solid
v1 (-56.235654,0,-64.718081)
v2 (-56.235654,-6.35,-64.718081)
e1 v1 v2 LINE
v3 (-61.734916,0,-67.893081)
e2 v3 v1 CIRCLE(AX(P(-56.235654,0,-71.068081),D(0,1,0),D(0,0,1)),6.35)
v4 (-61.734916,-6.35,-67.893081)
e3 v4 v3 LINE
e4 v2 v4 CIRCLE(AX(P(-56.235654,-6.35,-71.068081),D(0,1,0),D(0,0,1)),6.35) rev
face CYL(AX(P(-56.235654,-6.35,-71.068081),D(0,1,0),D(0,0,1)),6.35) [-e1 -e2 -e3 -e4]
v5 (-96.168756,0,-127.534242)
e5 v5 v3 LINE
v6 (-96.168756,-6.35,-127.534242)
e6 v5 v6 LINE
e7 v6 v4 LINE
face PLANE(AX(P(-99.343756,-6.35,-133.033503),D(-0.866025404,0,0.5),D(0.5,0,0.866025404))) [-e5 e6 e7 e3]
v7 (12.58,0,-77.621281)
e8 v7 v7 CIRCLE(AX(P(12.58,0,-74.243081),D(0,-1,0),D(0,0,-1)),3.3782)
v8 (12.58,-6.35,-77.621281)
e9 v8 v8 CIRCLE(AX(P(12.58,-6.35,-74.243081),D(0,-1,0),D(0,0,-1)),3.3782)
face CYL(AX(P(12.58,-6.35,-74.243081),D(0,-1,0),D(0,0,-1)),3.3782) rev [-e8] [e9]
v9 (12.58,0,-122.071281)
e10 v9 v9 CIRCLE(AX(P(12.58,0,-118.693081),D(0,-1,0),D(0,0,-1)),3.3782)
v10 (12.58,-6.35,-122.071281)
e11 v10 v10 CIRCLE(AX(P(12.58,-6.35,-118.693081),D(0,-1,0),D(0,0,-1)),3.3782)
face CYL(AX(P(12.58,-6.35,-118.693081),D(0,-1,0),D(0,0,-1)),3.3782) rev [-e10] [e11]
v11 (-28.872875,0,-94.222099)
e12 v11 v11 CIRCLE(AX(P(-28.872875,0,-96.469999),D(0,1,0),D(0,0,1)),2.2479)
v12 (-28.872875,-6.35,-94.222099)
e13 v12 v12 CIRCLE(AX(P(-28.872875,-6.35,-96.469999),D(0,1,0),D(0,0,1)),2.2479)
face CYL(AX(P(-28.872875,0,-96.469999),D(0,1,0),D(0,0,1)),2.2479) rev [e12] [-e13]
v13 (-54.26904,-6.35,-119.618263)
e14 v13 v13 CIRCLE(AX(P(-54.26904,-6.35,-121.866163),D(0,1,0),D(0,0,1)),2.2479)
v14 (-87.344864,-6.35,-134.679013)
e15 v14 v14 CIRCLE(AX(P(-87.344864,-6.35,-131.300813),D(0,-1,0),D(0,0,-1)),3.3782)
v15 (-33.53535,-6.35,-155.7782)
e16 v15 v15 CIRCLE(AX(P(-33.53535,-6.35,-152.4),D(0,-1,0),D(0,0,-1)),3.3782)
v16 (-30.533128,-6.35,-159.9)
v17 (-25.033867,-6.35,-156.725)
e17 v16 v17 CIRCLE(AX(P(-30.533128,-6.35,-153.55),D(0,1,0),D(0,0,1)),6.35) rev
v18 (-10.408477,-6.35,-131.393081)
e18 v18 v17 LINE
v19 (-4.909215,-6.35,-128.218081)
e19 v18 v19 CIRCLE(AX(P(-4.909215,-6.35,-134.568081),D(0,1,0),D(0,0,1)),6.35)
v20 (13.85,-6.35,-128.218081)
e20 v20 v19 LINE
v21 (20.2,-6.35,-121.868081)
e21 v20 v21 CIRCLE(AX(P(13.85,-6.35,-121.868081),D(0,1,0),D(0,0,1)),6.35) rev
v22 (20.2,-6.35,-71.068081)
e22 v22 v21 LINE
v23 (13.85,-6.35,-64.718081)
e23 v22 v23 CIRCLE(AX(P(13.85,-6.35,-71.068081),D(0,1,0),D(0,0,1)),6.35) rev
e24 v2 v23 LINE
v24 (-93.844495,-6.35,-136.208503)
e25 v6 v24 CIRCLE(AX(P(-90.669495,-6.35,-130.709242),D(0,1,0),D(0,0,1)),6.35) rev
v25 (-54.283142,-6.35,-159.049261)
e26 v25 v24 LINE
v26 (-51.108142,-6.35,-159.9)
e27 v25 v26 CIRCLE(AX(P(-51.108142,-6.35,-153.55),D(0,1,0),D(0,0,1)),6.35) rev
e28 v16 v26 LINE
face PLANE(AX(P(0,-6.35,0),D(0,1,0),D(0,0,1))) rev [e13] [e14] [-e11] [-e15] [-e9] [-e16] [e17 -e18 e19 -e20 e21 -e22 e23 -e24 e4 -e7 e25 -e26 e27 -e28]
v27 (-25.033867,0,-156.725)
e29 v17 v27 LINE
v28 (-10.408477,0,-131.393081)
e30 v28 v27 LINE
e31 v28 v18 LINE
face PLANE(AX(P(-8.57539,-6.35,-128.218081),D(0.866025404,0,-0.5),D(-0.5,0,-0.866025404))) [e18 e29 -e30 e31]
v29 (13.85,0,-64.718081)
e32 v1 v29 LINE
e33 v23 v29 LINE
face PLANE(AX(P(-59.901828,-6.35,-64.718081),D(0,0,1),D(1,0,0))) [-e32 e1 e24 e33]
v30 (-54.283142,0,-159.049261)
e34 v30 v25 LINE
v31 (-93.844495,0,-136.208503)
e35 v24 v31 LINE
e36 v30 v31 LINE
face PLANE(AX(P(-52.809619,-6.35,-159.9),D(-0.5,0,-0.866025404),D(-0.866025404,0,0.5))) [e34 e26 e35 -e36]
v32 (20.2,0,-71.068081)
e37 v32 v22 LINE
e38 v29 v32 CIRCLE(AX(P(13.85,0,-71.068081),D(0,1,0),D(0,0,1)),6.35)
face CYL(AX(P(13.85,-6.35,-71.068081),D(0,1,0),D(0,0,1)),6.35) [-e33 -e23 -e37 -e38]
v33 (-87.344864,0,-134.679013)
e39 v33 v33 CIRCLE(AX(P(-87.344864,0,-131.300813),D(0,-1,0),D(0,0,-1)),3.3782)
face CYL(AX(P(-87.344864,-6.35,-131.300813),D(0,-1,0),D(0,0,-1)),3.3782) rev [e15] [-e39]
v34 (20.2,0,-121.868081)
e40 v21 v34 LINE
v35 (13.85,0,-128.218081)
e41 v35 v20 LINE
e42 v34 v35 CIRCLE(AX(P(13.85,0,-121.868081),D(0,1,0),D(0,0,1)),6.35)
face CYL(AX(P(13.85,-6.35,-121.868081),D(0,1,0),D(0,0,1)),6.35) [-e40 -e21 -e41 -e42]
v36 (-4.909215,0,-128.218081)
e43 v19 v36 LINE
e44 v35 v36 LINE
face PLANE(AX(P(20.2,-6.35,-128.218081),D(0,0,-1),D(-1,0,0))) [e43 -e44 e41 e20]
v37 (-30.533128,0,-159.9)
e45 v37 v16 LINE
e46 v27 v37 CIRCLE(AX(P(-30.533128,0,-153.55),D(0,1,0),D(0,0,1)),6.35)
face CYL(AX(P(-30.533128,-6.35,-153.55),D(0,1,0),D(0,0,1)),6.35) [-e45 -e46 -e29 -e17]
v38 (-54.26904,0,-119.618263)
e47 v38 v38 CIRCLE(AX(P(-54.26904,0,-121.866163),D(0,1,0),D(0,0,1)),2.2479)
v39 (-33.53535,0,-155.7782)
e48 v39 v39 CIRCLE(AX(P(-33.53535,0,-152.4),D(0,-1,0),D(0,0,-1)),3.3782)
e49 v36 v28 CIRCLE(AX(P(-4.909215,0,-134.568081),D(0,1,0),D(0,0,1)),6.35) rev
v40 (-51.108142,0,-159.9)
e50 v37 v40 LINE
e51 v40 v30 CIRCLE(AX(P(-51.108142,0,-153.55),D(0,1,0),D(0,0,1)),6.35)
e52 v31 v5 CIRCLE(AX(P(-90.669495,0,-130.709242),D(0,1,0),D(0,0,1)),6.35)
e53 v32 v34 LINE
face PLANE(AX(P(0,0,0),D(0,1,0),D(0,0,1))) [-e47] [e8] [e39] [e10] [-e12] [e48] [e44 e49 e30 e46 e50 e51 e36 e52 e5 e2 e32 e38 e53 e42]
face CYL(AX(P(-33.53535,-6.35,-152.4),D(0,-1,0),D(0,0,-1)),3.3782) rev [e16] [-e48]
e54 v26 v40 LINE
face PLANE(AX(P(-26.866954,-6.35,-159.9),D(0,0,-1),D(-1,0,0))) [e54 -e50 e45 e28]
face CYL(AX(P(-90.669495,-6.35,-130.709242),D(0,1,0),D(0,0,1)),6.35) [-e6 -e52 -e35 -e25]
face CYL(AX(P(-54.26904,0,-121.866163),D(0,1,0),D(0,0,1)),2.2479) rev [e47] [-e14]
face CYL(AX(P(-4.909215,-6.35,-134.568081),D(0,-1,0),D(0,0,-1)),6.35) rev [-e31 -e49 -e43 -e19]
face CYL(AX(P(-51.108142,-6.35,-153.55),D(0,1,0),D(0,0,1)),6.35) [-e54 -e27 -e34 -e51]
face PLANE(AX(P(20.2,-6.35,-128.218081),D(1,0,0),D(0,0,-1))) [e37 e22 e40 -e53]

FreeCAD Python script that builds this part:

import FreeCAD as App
import Part
import Sketcher
Q = App.Units.Quantity


def edges_at(feature, points):
    """Names of the edges that pass closest to the given points."""
    edges = feature.Shape.Edges
    near = lambda p: min(range(len(edges)), key=lambda i: edges[i].distToShape(Part.Vertex(*p))[0])
    return sorted({f"Edge{near(p) + 1}" for p in points})

doc = App.newDocument("Part")
params = doc.addObject("Spreadsheet::Sheet", "Params")
for row, (alias, value) in enumerate([
    ("sketch1_height", "2.5 in"),
    ("pad1_length", "0.25 in"),
    ("fillet_radius", "0.25 in"),
    ("sketch2_diameter", "0.266 in"),
    ("hole_diameter", "0.266 in"),
    ("sketch3_diameter", "0.177 in"),
    ("hole2_diameter", "0.177 in"),
], start=1):
    params.set(f"A{row}", alias)
    params.set(f"B{row}", "=" + value)
    params.setAlias(f"B{row}", alias)

body = doc.addObject("PartDesign::Body", "Body")

# Sketch on XZ plane
sketch1 = doc.addObject("Sketcher::SketchObject", "Sketch")
body.addObject(sketch1)
sketch1.AttachmentSupport = (doc.XZ_Plane, [""])
sketch1.MapMode = "FlatFace"
sketch1.addGeometry(Part.LineSegment(App.Vector(-27, -160, 0), App.Vector(-53, -160, 0)), False)
sketch1.addGeometry(Part.LineSegment(App.Vector(-53, -160, 0), App.Vector(-99, -133, 0)), False)
sketch1.addGeometry(Part.LineSegment(App.Vector(-99, -133, 0), App.Vector(-60, -65, 0)), False)
sketch1.addGeometry(Part.LineSegment(App.Vector(-60, -65, 0), App.Vector(20, -65, 0)), False)
sketch1.addGeometry(Part.LineSegment(App.Vector(20, -65, 0), App.Vector(20, -128, 0)), False)
sketch1.addGeometry(Part.LineSegment(App.Vector(20, -128, 0), App.Vector(-9, -128, 0)), False)
sketch1.addGeometry(Part.LineSegment(App.Vector(-9, -128, 0), App.Vector(-27, -160, 0)), False)
sketch1.addConstraint(Sketcher.Constraint("Coincident", 0, 2, 1, 1))
sketch1.addConstraint(Sketcher.Constraint("Coincident", 1, 2, 2, 1))
sketch1.addConstraint(Sketcher.Constraint("Coincident", 2, 2, 3, 1))
sketch1.addConstraint(Sketcher.Constraint("Coincident", 3, 2, 4, 1))
sketch1.addConstraint(Sketcher.Constraint("Coincident", 4, 2, 5, 1))
sketch1.addConstraint(Sketcher.Constraint("Coincident", 5, 2, 6, 1))
sketch1.addConstraint(Sketcher.Constraint("Coincident", 6, 2, 0, 1))
sketch1.addConstraint(Sketcher.Constraint("Horizontal", 0))
sketch1.addConstraint(Sketcher.Constraint("Horizontal", 3))
sketch1.addConstraint(Sketcher.Constraint("Vertical", 4))
sketch1.addConstraint(Sketcher.Constraint("Horizontal", 5))
sketch1.addConstraint(Sketcher.Constraint("Perpendicular", 1, 2))
sketch1.addConstraint(Sketcher.Constraint("Parallel", 2, 6))
sketch1.addConstraint(Sketcher.Constraint("DistanceY", 4, 2, 4, 1, Q("2.5 in")))
sketch1.addConstraint(Sketcher.Constraint("Angle", 1, Q("150 deg")))
sketch1.addConstraint(Sketcher.Constraint("DistanceX", 3, 1, 3, 2, 80.101828))
sketch1.addConstraint(Sketcher.Constraint("DistanceX", 5, 2, 5, 1, 28.77539))
sketch1.addConstraint(Sketcher.Constraint("DistanceY", 0, 2, -1, 1, 159.9))
sketch1.addConstraint(Sketcher.Constraint("DistanceX", -1, 1, 3, 2, 20.2))
sketch1.addConstraint(Sketcher.Constraint("DistanceX", 1, 2, 6, 2, 72.476802))
sketch1.addConstraint(Sketcher.Constraint("Distance", 6, 36.583129))
sketch1.setExpression("Constraints[13]", "Params.sketch1_height")
pad1 = doc.addObject("PartDesign::Pad", "Pad")
body.addObject(pad1)
pad1.Profile = sketch1
pad1.setExpression("Length", "Params.pad1_length")
doc.recompute()

fillet = doc.addObject("PartDesign::Fillet", "Fillet")
body.addObject(fillet)
fillet.Base = (pad1, edges_at(pad1, [
    (-52.81, -3.175, -159.9),
    (-26.867, -3.175, -159.9),
    (-8.575, -3.175, -128.218),
    (20.2, -3.175, -128.218),
    (20.2, -3.175, -64.718),
    (-59.902, -3.175, -64.718),
    (-99.344, -3.175, -133.034),
]))
fillet.setExpression("Radius", "Params.fillet_radius")

# Sketch on XZ plane
sketch2 = doc.addObject("Sketcher::SketchObject", "Sketch001")
body.addObject(sketch2)
sketch2.AttachmentSupport = (doc.XZ_Plane, [""])
sketch2.MapMode = "FlatFace"
sketch2.AttachmentOffset = App.Placement(App.Vector(0, 0, 0.25 * 25.4), App.Rotation())
sketch2.addGeometry(Part.Circle(App.Vector(-87.3, -131.3, 0), App.Vector(0, 0, 1), 3.4), False)
sketch2.addGeometry(Part.Circle(App.Vector(-33.5, -152.4, 0), App.Vector(0, 0, 1), 3.4), False)
sketch2.addGeometry(Part.Circle(App.Vector(12.6, -74.2, 0), App.Vector(0, 0, 1), 3.4), False)
sketch2.addGeometry(Part.Circle(App.Vector(12.6, -118.7, 0), App.Vector(0, 0, 1), 3.4), False)
sketch2.addConstraint(Sketcher.Constraint("Equal", 0, 1))
sketch2.addConstraint(Sketcher.Constraint("Equal", 1, 2))
sketch2.addConstraint(Sketcher.Constraint("Equal", 2, 3))
sketch2.addConstraint(Sketcher.Constraint("Vertical", 2, 3, 3, 3))
sketch2.addConstraint(Sketcher.Constraint("Diameter", 0, Q("0.266 in")))
sketch2.addConstraint(Sketcher.Constraint("DistanceY", 1, 3, -1, 1, Q("6 in")))
sketch2.addConstraint(Sketcher.Constraint("DistanceY", 3, 3, 2, 3, Q("1.75 in")))
sketch2.addConstraint(Sketcher.Constraint("DistanceX", -1, 1, 2, 3, 12.58))
sketch2.addConstraint(Sketcher.Constraint("DistanceX", 1, 3, -1, 1, 33.53535))
sketch2.addConstraint(Sketcher.Constraint("DistanceY", 2, 3, -1, 1, 74.243081))
sketch2.addConstraint(Sketcher.Constraint("DistanceX", 0, 3, -1, 1, 87.344864))
sketch2.addConstraint(Sketcher.Constraint("DistanceY", 0, 3, -1, 1, 131.300813))
sketch2.setExpression("Constraints[4]", "Params.sketch2_diameter")
doc.recompute()
hole = doc.addObject("PartDesign::Hole", "Hole")
body.addObject(hole)
hole.Profile = sketch2
hole.ThreadType = "None"
hole.setExpression("Diameter", "Params.hole_diameter")
hole.DepthType = "ThroughAll"

# Sketch on XZ plane
sketch3 = doc.addObject("Sketcher::SketchObject", "Sketch002")
body.addObject(sketch3)
sketch3.AttachmentSupport = (doc.XZ_Plane, [""])
sketch3.MapMode = "FlatFace"
sketch3.addGeometry(Part.Circle(App.Vector(-54.3, -121.9, 0), App.Vector(0, 0, 1), 2.2), False)
sketch3.addGeometry(Part.Circle(App.Vector(-28.9, -96.5, 0), App.Vector(0, 0, 1), 2.2), False)
sketch3.addConstraint(Sketcher.Constraint("Equal", 0, 1))
sketch3.addConstraint(Sketcher.Constraint("Diameter", 0, Q("0.177 in")))
sketch3.addConstraint(Sketcher.Constraint("DistanceY", 1, 3, -1, 1, 96.469999))
sketch3.addConstraint(Sketcher.Constraint("DistanceX", 0, 3, -1, 1, 54.26904))
sketch3.addConstraint(Sketcher.Constraint("DistanceY", 0, 3, -1, 1, 121.866163))
sketch3.addConstraint(Sketcher.Constraint("DistanceX", 1, 3, -1, 1, 28.872875))
sketch3.setExpression("Constraints[1]", "Params.sketch3_diameter")
doc.recompute()
hole2 = doc.addObject("PartDesign::Hole", "Hole001")
body.addObject(hole2)
hole2.Profile = sketch3
hole2.ThreadType = "None"
hole2.setExpression("Diameter", "Params.hole2_diameter")
hole2.DepthType = "ThroughAll"
hole2.Reversed = True

doc.recompute()
